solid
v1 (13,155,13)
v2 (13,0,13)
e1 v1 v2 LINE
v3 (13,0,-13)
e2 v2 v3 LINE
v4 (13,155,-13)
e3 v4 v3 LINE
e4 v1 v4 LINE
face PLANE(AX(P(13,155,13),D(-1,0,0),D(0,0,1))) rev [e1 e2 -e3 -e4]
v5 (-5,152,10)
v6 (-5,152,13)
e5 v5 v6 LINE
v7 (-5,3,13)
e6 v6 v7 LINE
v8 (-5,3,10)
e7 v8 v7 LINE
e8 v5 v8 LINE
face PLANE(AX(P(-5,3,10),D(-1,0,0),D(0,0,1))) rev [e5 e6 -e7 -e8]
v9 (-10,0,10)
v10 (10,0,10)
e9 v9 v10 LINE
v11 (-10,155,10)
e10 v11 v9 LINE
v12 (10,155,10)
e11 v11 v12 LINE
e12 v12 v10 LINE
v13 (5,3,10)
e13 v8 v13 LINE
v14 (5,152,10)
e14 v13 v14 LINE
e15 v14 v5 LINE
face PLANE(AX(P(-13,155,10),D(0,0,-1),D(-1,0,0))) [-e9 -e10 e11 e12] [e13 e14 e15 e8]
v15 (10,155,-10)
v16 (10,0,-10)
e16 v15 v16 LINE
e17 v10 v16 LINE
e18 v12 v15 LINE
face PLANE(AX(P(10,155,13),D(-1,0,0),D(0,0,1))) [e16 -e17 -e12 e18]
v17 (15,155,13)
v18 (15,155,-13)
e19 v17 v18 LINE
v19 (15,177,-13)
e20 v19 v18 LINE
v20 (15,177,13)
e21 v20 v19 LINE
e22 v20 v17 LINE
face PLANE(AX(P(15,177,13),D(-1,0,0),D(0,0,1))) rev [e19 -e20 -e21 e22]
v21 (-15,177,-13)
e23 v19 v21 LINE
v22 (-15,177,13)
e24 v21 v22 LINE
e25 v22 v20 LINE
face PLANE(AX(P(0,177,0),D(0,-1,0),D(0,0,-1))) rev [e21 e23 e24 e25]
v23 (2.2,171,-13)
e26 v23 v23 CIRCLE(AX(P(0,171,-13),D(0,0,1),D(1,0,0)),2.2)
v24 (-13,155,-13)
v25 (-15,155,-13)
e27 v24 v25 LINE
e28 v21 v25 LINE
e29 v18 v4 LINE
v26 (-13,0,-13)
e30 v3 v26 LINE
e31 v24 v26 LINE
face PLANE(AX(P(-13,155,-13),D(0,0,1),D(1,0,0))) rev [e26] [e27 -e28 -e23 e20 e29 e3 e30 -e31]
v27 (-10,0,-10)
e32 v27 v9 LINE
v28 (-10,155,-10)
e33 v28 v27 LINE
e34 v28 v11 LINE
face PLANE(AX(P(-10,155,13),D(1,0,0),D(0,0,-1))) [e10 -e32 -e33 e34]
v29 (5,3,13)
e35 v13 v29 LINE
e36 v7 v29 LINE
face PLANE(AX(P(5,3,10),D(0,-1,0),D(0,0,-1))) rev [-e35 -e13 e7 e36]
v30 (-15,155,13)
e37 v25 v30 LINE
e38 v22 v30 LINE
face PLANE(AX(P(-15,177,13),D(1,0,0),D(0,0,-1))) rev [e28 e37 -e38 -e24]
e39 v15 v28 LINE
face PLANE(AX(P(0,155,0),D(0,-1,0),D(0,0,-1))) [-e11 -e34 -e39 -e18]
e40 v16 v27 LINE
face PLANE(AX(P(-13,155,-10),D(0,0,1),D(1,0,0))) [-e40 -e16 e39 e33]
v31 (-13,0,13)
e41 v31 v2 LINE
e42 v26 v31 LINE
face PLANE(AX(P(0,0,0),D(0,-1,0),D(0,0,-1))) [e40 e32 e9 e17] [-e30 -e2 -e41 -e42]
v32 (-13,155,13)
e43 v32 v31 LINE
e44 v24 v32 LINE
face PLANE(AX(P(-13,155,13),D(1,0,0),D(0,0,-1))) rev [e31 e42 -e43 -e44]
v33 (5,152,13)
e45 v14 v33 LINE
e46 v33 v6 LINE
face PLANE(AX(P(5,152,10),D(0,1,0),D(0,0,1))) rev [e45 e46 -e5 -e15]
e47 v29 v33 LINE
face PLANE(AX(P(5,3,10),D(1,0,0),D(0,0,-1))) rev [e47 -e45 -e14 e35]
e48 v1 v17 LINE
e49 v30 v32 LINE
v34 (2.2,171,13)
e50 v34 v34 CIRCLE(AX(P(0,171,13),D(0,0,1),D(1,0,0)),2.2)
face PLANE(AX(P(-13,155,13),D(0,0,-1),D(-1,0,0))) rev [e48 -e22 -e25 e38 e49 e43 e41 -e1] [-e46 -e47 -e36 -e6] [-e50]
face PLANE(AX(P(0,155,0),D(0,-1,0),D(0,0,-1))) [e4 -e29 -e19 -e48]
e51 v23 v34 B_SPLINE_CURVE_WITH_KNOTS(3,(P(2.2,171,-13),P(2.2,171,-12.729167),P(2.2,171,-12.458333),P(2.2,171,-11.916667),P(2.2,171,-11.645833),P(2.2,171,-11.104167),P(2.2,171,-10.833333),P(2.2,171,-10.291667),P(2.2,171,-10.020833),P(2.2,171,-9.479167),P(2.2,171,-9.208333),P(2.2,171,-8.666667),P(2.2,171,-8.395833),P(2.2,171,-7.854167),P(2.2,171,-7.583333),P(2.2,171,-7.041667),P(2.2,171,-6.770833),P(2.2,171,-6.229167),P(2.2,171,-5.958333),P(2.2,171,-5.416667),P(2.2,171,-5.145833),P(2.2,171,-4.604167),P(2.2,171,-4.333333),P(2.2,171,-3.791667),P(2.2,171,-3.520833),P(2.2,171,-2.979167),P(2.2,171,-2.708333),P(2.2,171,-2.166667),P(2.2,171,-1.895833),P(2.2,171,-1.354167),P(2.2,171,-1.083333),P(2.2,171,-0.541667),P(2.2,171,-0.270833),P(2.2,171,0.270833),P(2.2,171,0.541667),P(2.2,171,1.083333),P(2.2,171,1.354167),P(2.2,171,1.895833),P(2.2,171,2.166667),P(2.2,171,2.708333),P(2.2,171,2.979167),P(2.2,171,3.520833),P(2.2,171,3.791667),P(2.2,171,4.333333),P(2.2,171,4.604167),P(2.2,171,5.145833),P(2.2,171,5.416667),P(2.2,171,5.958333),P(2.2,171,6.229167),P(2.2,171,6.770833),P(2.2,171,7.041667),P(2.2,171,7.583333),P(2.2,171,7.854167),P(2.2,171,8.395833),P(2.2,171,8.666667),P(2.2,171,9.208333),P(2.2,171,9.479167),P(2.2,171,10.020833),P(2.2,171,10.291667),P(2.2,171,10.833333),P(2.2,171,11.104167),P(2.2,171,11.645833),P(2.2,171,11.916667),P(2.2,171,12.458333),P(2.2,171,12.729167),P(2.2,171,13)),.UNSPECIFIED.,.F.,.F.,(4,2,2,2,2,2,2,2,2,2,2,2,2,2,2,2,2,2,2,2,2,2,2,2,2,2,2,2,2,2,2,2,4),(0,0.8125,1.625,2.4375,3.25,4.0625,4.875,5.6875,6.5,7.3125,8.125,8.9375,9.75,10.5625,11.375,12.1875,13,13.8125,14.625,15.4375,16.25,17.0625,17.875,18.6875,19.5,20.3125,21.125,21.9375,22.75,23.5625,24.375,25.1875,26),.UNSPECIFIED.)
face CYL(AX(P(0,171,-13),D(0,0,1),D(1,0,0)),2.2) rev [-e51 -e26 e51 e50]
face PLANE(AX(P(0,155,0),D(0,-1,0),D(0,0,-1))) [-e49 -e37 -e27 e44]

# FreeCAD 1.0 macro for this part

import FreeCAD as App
import Part
import Sketcher
Q = App.Units.Quantity


def faces_at(feature, points):
    """Names of the faces that lie closest to the given points."""
    faces = feature.Shape.Faces
    near = lambda p: min(range(len(faces)), key=lambda i: faces[i].distToShape(Part.Vertex(*p))[0])
    return sorted({f"Face{near(p) + 1}" for p in points})


def add_polygon(sketch, points):
    """Adds a closed chain of lines whose ends are joined by coincident constraints."""
    first, n = sketch.GeometryCount, len(points)
    for a, b in zip(points, points[1:] + points[:1]):
        sketch.addGeometry(Part.LineSegment(App.Vector(*a, 0), App.Vector(*b, 0)), False)
    for i in range(n):
        sketch.addConstraint(Sketcher.Constraint("Coincident", first + i, 2, first + (i + 1) % n, 1))

doc = App.newDocument("Part")
params = doc.addObject("Spreadsheet::Sheet", "Params")
for row, (alias, value) in enumerate([
    ("sketch1_width", "26 mm"),
    ("pad1_length", "155 mm"),
    ("thickness_wall", "3 mm"),
    ("sketch2_width", "10 mm"),
    ("sketch2_height", "149 mm"),
    ("pocket1_length", "3 mm"),
    ("sketch3_width", "30 mm"),
    ("sketch3_height", "26 mm"),
    ("pad2_length", "22 mm"),
    ("sketch4_diameter", "4.4 mm"),
], start=1):
    params.set(f"A{row}", alias)
    params.set(f"B{row}", "=" + value)
    params.setAlias(f"B{row}", alias)

body = doc.addObject("PartDesign::Body", "Body")

# Sketch on XZ plane
sketch1 = body.newObject("Sketcher::SketchObject", "Sketch")
sketch1.AttachmentSupport = (doc.getObject("XZ_Plane"), [""])
sketch1.MapMode = "FlatFace"
add_polygon(sketch1, [(-13, -13), (-13, 13), (13, 13), (13, -13)])  # lines 0-3
sketch1.addConstraint(Sketcher.Constraint("Vertical", 0))
sketch1.addConstraint(Sketcher.Constraint("Horizontal", 1))
sketch1.addConstraint(Sketcher.Constraint("Vertical", 2))
sketch1.addConstraint(Sketcher.Constraint("Horizontal", 3))
sketch1.addConstraint(Sketcher.Constraint("Symmetric", 0, 2, 2, 2, -1, 1))
sketch1.addConstraint(Sketcher.Constraint("Equal", 3, 0))
sketch1.addConstraint(Sketcher.Constraint("DistanceX", 1, 1, 1, 2, Q("26 mm")))
sketch1.setExpression("Constraints[10]", "Params.sketch1_width")
pad1 = body.newObject("PartDesign::Pad", "Pad")
pad1.Profile = sketch1
pad1.setExpression("Length", "Params.pad1_length")
pad1.Reversed = True
doc.recompute()

thickness = body.newObject("PartDesign::Thickness", "Thickness")
thickness.Base = (pad1, faces_at(pad1, [(0, 155, 0), (0, 0, 0)]))
thickness.setExpression("Value", "Params.thickness_wall")
thickness.Reversed = True
thickness.Join = "Intersection"

# Sketch on XY plane
sketch2 = body.newObject("Sketcher::SketchObject", "Sketch001")
sketch2.AttachmentSupport = (doc.getObject("XY_Plane"), [""])
sketch2.MapMode = "FlatFace"
sketch2.AttachmentOffset = App.Placement(App.Vector(0, 0, 13), App.Rotation())
add_polygon(sketch2, [(-5, 152), (-5, 3), (5, 3), (5, 152)])  # lines 0-3
sketch2.addConstraint(Sketcher.Constraint("Vertical", 0))
sketch2.addConstraint(Sketcher.Constraint("Horizontal", 1))
sketch2.addConstraint(Sketcher.Constraint("Vertical", 2))
sketch2.addConstraint(Sketcher.Constraint("Horizontal", 3))
sketch2.addConstraint(Sketcher.Constraint("DistanceX", 1, 1, 1, 2, Q("10 mm")))
sketch2.addConstraint(Sketcher.Constraint("DistanceY", 0, 2, 0, 1, Q("149 mm")))
sketch2.addConstraint(Sketcher.Constraint("DistanceX", 0, 2, -1, 1, Q("5 mm")))
sketch2.addConstraint(Sketcher.Constraint("DistanceY", -1, 1, 0, 2, Q("3 mm")))
sketch2.setExpression("Constraints[8]", "Params.sketch2_width")
sketch2.setExpression("Constraints[9]", "Params.sketch2_height")
pocket1 = body.newObject("PartDesign::Pocket", "Pocket")
pocket1.Profile = sketch2
pocket1.setExpression("Length", "Params.pocket1_length")

# Sketch on XZ plane
sketch3 = body.newObject("Sketcher::SketchObject", "Sketch002")
sketch3.AttachmentSupport = (doc.getObject("XZ_Plane"), [""])
sketch3.MapMode = "FlatFace"
sketch3.AttachmentOffset = App.Placement(App.Vector(0, 0, -155), App.Rotation())
add_polygon(sketch3, [(-15, -13), (-15, 13), (15, 13), (15, -13)])  # lines 0-3
sketch3.addConstraint(Sketcher.Constraint("Vertical", 0))
sketch3.addConstraint(Sketcher.Constraint("Horizontal", 1))
sketch3.addConstraint(Sketcher.Constraint("Vertical", 2))
sketch3.addConstraint(Sketcher.Constraint("Horizontal", 3))
sketch3.addConstraint(Sketcher.Constraint("Symmetric", 0, 2, 2, 2, -1, 1))
sketch3.addConstraint(Sketcher.Constraint("DistanceX", 1, 1, 1, 2, Q("30 mm")))
sketch3.addConstraint(Sketcher.Constraint("DistanceY", 0, 1, 0, 2, Q("26 mm")))
sketch3.setExpression("Constraints[9]", "Params.sketch3_width")
sketch3.setExpression("Constraints[10]", "Params.sketch3_height")
pad2 = body.newObject("PartDesign::Pad", "Pad001")
pad2.Profile = sketch3
pad2.setExpression("Length", "Params.pad2_length")
pad2.Reversed = True

# Sketch on XY plane
sketch4 = body.newObject("Sketcher::SketchObject", "Sketch003")
sketch4.AttachmentSupport = (doc.getObject("XY_Plane"), [""])
sketch4.MapMode = "FlatFace"
sketch4.AttachmentOffset = App.Placement(App.Vector(0, 0, 13), App.Rotation())
sketch4.addGeometry(Part.Circle(App.Vector(0, 171, 0), App.Vector(0, 0, 1), 2.2), False)
sketch4.addConstraint(Sketcher.Constraint("PointOnObject", 0, 3, -2))
sketch4.addConstraint(Sketcher.Constraint("Diameter", 0, Q("4.4 mm")))
sketch4.addConstraint(Sketcher.Constraint("DistanceY", -1, 1, 0, 3, Q("171 mm")))
sketch4.setExpression("Constraints[1]", "Params.sketch4_diameter")
pocket2 = body.newObject("PartDesign::Pocket", "Pocket001")
pocket2.Profile = sketch4
pocket2.Type = "ThroughAll"

doc.recompute()
